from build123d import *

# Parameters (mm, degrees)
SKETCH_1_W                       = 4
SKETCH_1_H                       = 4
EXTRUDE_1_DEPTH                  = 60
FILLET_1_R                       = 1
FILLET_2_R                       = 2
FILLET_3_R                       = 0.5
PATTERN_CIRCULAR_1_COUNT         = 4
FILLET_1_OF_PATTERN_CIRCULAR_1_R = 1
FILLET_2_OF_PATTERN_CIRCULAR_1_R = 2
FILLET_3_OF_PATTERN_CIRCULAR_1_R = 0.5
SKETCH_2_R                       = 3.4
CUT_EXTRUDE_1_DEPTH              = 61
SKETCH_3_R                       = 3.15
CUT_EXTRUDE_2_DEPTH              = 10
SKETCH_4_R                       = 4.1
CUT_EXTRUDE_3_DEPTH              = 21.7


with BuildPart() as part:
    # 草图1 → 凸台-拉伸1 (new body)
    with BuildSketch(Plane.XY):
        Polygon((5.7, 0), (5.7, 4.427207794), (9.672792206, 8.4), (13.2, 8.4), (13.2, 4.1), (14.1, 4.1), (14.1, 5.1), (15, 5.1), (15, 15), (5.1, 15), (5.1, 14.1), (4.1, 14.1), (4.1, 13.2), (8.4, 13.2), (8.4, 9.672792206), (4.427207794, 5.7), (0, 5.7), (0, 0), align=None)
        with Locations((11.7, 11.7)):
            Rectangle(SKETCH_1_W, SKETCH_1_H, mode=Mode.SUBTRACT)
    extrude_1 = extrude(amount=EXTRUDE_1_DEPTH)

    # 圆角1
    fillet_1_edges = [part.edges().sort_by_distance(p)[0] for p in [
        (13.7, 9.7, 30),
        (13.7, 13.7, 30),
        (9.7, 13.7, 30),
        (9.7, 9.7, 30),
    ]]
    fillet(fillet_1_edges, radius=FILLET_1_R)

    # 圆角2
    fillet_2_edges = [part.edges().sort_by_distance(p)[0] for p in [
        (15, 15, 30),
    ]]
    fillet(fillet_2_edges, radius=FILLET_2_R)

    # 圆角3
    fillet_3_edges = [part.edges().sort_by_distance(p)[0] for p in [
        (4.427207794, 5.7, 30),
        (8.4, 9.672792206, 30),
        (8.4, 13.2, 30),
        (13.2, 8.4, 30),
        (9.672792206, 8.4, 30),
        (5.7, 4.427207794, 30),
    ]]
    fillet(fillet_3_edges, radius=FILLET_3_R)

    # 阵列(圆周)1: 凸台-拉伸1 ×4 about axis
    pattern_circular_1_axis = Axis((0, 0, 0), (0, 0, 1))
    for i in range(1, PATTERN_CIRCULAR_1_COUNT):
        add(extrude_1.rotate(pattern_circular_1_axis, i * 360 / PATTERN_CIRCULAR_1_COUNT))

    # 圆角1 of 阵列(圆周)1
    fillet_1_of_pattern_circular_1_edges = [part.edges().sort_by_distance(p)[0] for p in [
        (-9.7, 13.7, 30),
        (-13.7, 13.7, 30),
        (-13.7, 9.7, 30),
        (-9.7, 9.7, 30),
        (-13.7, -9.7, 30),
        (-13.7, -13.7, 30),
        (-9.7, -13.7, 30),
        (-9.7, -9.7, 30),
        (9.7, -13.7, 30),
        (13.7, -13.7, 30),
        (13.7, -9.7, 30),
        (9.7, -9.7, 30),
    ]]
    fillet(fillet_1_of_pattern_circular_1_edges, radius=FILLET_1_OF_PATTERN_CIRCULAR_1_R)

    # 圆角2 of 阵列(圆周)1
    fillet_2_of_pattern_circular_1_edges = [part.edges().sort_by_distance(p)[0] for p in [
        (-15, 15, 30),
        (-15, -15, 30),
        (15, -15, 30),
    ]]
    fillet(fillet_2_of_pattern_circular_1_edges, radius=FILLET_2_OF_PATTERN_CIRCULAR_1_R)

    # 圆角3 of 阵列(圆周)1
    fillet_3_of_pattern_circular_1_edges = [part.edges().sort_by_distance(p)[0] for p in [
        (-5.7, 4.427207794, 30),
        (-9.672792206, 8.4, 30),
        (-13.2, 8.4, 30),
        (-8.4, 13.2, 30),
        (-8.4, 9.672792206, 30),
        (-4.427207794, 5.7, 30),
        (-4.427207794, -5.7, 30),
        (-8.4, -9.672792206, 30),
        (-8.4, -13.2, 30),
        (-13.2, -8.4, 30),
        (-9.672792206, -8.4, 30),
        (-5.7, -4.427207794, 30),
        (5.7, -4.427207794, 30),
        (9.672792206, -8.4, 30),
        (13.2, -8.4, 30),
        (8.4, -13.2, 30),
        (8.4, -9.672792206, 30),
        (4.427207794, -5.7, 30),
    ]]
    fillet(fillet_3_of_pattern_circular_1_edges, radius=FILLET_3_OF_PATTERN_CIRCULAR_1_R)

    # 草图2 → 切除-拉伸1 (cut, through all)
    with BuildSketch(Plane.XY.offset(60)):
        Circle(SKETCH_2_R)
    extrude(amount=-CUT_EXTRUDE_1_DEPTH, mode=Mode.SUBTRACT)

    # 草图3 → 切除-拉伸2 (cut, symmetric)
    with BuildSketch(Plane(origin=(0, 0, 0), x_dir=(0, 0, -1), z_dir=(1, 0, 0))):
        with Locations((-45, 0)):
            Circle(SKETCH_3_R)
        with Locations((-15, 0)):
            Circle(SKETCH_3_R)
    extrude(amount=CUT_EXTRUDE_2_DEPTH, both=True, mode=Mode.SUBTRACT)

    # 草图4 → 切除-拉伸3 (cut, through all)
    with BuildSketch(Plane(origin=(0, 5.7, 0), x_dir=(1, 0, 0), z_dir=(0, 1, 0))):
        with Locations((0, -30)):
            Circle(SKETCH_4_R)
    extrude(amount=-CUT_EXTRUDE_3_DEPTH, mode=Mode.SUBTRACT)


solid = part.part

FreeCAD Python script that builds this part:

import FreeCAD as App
import Part
import Sketcher
from FreeCAD import Vector
Q = App.Units.Quantity


def edges_at(feature, points):
    """Names of the edges that pass closest to the given points."""
    edges = feature.Shape.Edges
    near = lambda p: min(range(len(edges)), key=lambda i: edges[i].distToShape(Part.Vertex(*p))[0])
    return sorted({f"Edge{near(p) + 1}" for p in points})


def add_polygon(sketch, points):
    """Adds a closed chain of lines whose ends are joined by coincident constraints."""
    first, n = sketch.GeometryCount, len(points)
    for a, b in zip(points, points[1:] + points[:1]):
        sketch.addGeometry(Part.LineSegment(App.Vector(*a, 0), App.Vector(*b, 0)), False)
    for i in range(n):
        sketch.addConstraint(Sketcher.Constraint("Coincident", first + i, 2, first + (i + 1) % n, 1))

doc = App.newDocument("Part")
body = doc.addObject("PartDesign::Body", "Body")

sketch1 = body.newObject("Sketcher::SketchObject", "Sketch")
sketch1.AttachmentSupport = (doc.getObject("XY_Plane"), [""])
sketch1.MapMode = "FlatFace"
add_polygon(sketch1, [(5.7, 0), (5.7, 4.4), (9.7, 8.4), (13.2, 8.4), (13.2, 4.1), (14.1, 4.1), (14.1, 5.1), (15, 5.1), (15, 15), (5.1, 15), (5.1, 14.1), (4.1, 14.1), (4.1, 13.2), (8.4, 13.2), (8.4, 9.7), (4.4, 5.7), (0, 5.7), (0, 0)])
add_polygon(sketch1, [(13.7, 9.7), (9.7, 9.7), (9.7, 13.7), (13.7, 13.7)])
sketch1.addConstraint(Sketcher.Constraint("Vertical", 0))
sketch1.addConstraint(Sketcher.Constraint("Horizontal", 2))
sketch1.addConstraint(Sketcher.Constraint("Vertical", 3))
sketch1.addConstraint(Sketcher.Constraint("Horizontal", 4))
sketch1.addConstraint(Sketcher.Constraint("Vertical", 5))
sketch1.addConstraint(Sketcher.Constraint("Horizontal", 6))
sketch1.addConstraint(Sketcher.Constraint("Vertical", 7))
sketch1.addConstraint(Sketcher.Constraint("Horizontal", 8))
sketch1.addConstraint(Sketcher.Constraint("Vertical", 9))
sketch1.addConstraint(Sketcher.Constraint("Horizontal", 10))
sketch1.addConstraint(Sketcher.Constraint("Vertical", 11))
sketch1.addConstraint(Sketcher.Constraint("Horizontal", 12))
sketch1.addConstraint(Sketcher.Constraint("Vertical", 13))
sketch1.addConstraint(Sketcher.Constraint("Horizontal", 15))
sketch1.addConstraint(Sketcher.Constraint("Vertical", 16))
sketch1.addConstraint(Sketcher.Constraint("Horizontal", 17))
sketch1.addConstraint(Sketcher.Constraint("Horizontal", 18))
sketch1.addConstraint(Sketcher.Constraint("Vertical", 19))
sketch1.addConstraint(Sketcher.Constraint("Horizontal", 20))
sketch1.addConstraint(Sketcher.Constraint("Vertical", 21))
sketch1.addConstraint(Sketcher.Constraint("Coincident", 16, 2, -1, 1))
sketch1.addConstraint(Sketcher.Constraint("Parallel", 1, 14))
sketch1.addConstraint(Sketcher.Constraint("Equal", 4, 6))
sketch1.addConstraint(Sketcher.Constraint("Equal", 15, 0))
sketch1.addConstraint(Sketcher.Constraint("Equal", 12, 3))
sketch1.addConstraint(Sketcher.Constraint("Equal", 10, 5))
sketch1.addConstraint(Sketcher.Constraint("Equal", 8, 7))
sketch1.addConstraint(Sketcher.Constraint("Equal", 6, 9))
sketch1.addConstraint(Sketcher.Constraint("Equal", 9, 11))
sketch1.addConstraint(Sketcher.Constraint("Equal", 2, 13))
sketch1.addConstraint(Sketcher.Constraint("Equal", 17, 16))
sketch1.addConstraint(Sketcher.Constraint("Equal", 20, 19))
sketch1.addConstraint(Sketcher.Constraint("DistanceX", 10, 2, 10, 1, Q("1 mm")))
sketch1.addConstraint(Sketcher.Constraint("DistanceX", 18, 2, 18, 1, Q("4 mm")))
sketch1.addConstraint(Sketcher.Constraint("Angle", 1, Q("45 deg")))
sketch1.addConstraint(Sketcher.Constraint("DistanceX", 4, 1, 4, 2, Q("0.9 mm")))
sketch1.addConstraint(Sketcher.Constraint("DistanceX", 8, 2, 8, 1, Q("9.9 mm")))
sketch1.addConstraint(Sketcher.Constraint("DistanceX", 12, 1, 12, 2, Q("4.3 mm")))
sketch1.addConstraint(Sketcher.Constraint("DistanceX", 17, 1, 17, 2, Q("5.7 mm")))
sketch1.addConstraint(Sketcher.Constraint("DistanceX", -1, 1, 6, 2, Q("15 mm")))
sketch1.addConstraint(Sketcher.Constraint("DistanceX", -1, 1, 18, 2, Q("9.7 mm")))
sketch1.addConstraint(Sketcher.Constraint("DistanceY", -1, 1, 18, 2, Q("9.7 mm")))
sketch1.addConstraint(Sketcher.Constraint("DistanceX", 2, 1, 2, 2, Q("3.527208 mm")))
pad1 = body.newObject("PartDesign::Pad", "Pad")
pad1.Profile = sketch1
pad1.Length = 60
doc.recompute()

fillet = body.newObject("PartDesign::Fillet", "Fillet")
fillet.Base = (pad1, edges_at(pad1, [
    (13.7, 9.7, 30),
    (13.7, 13.7, 30),
    (9.7, 13.7, 30),
    (9.7, 9.7, 30),
]))
fillet.Radius = 1
doc.recompute()

fillet2 = body.newObject("PartDesign::Fillet", "Fillet001")
fillet2.Base = (fillet, edges_at(fillet, [(15, 15, 30)]))
fillet2.Radius = 2
doc.recompute()

fillet3 = body.newObject("PartDesign::Fillet", "Fillet002")
fillet3.Base = (fillet2, edges_at(fillet2, [
    (4.427, 5.7, 30),
    (8.4, 9.673, 30),
    (8.4, 13.2, 30),
    (13.2, 8.4, 30),
    (9.673, 8.4, 30),
    (5.7, 4.427, 30),
]))
fillet3.Radius = 0.5
doc.recompute()

polarpattern = body.newObject("PartDesign::PolarPattern", "PolarPattern")
polarpattern.Originals = [pad1]
polarpattern.Axis = (doc.getObject("Z_Axis"), [""])
polarpattern.Angle = 360
polarpattern.Occurrences = 4
body.Tip = polarpattern
doc.recompute()

fillet4 = body.newObject("PartDesign::Fillet", "Fillet003")
fillet4.Base = (polarpattern, edges_at(polarpattern, [
    (-9.7, 13.7, 30),
    (-13.7, 13.7, 30),
    (-13.7, 9.7, 30),
    (-9.7, 9.7, 30),
    (-13.7, -9.7, 30),
    (-13.7, -13.7, 30),
    (-9.7, -13.7, 30),
    (-9.7, -9.7, 30),
    (9.7, -13.7, 30),
    (13.7, -13.7, 30),
    (13.7, -9.7, 30),
    (9.7, -9.7, 30),
]))
fillet4.Radius = 1
doc.recompute()

fillet5 = body.newObject("PartDesign::Fillet", "Fillet004")
fillet5.Base = (fillet4, edges_at(fillet4, [(-15, 15, 30), (-15, -15, 30), (15, -15, 30)]))
fillet5.Radius = 2
doc.recompute()

fillet6 = body.newObject("PartDesign::Fillet", "Fillet005")
fillet6.Base = (fillet5, edges_at(fillet5, [
    (-5.7, 4.427, 30),
    (-9.673, 8.4, 30),
    (-13.2, 8.4, 30),
    (-8.4, 13.2, 30),
    (-8.4, 9.673, 30),
    (-4.427, 5.7, 30),
    (-4.427, -5.7, 30),
    (-8.4, -9.673, 30),
    (-8.4, -13.2, 30),
    (-13.2, -8.4, 30),
    (-9.673, -8.4, 30),
    (-5.7, -4.427, 30),
    (5.7, -4.427, 30),
    (9.673, -8.4, 30),
    (13.2, -8.4, 30),
    (8.4, -13.2, 30),
    (8.4, -9.673, 30),
    (4.427, -5.7, 30),
]))
fillet6.Radius = 0.5

sketch2 = body.newObject("Sketcher::SketchObject", "Sketch001")
sketch2.AttachmentSupport = (doc.getObject("XY_Plane"), [""])
sketch2.MapMode = "FlatFace"
sketch2.AttachmentOffset = App.Placement(Vector(0, 0, 60), App.Rotation())
sketch2.addGeometry(Part.Circle(Vector(0, 0, 0), Vector(0, 0, 1), 3.4), False)
sketch2.addConstraint(Sketcher.Constraint("Coincident", 0, 3, -1, 1))
sketch2.addConstraint(Sketcher.Constraint("Diameter", 0, Q("6.8 mm")))
pocket1 = body.newObject("PartDesign::Pocket", "Pocket")
pocket1.Profile = sketch2
pocket1.Type = "ThroughAll"

sketch3 = body.newObject("Sketcher::SketchObject", "Sketch002")
sketch3.AttachmentSupport = (doc.getObject("YZ_Plane"), [""])
sketch3.MapMode = "FlatFace"
sketch3.addGeometry(Part.Circle(Vector(0, 45, 0), Vector(0, 0, 1), 3.1), False)
sketch3.addGeometry(Part.Circle(Vector(0, 15, 0), Vector(0, 0, 1), 3.1), False)
sketch3.addConstraint(Sketcher.Constraint("Equal", 0, 1))
sketch3.addConstraint(Sketcher.Constraint("PointOnObject", 0, 3, -2))
sketch3.addConstraint(Sketcher.Constraint("PointOnObject", 1, 3, -2))
sketch3.addConstraint(Sketcher.Constraint("Diameter", 0, Q("6.3 mm")))
sketch3.addConstraint(Sketcher.Constraint("DistanceY", -1, 1, 0, 3, Q("45 mm")))
sketch3.addConstraint(Sketcher.Constraint("DistanceY", -1, 1, 1, 3, Q("15 mm")))
pocket2 = body.newObject("PartDesign::Pocket", "Pocket001")
pocket2.Profile = sketch3
pocket2.Length = 20
pocket2.Midplane = True

sketch4 = body.newObject("Sketcher::SketchObject", "Sketch003")
sketch4.AttachmentSupport = (doc.getObject("XZ_Plane"), [""])
sketch4.MapMode = "FlatFace"
sketch4.AttachmentOffset = App.Placement(Vector(0, 0, -5.7), App.Rotation())
sketch4.addGeometry(Part.Circle(Vector(0, 30, 0), Vector(0, 0, 1), 4.1), False)
sketch4.addConstraint(Sketcher.Constraint("PointOnObject", 0, 3, -2))
sketch4.addConstraint(Sketcher.Constraint("Diameter", 0, Q("8.2 mm")))
sketch4.addConstraint(Sketcher.Constraint("DistanceY", -1, 1, 0, 3, Q("30 mm")))
pocket3 = body.newObject("PartDesign::Pocket", "Pocket002")
pocket3.Profile = sketch4
pocket3.Type = "ThroughAll"
pocket3.Reversed = True

doc.recompute()
